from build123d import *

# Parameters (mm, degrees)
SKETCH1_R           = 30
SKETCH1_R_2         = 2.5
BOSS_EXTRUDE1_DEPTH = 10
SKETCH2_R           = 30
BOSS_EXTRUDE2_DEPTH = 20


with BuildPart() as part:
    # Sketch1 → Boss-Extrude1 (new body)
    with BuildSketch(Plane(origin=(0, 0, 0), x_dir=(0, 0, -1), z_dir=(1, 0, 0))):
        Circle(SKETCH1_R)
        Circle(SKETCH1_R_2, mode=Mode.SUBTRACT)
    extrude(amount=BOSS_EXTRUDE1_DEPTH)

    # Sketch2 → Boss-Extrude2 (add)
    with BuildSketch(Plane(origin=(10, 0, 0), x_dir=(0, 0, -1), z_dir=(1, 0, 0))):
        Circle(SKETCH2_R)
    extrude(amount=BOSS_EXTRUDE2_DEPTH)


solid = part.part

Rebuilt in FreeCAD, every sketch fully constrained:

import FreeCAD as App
import Part
import Sketcher

V = App.Vector
Q = App.Units.Quantity

doc = App.newDocument("Part")
body = doc.addObject("PartDesign::Body", "Body")

sketch1 = body.newObject("Sketcher::SketchObject", "Sketch")
sketch1.AttachmentSupport = (doc.getObject("YZ_Plane"), [""])
sketch1.MapMode = "FlatFace"
sketch1.addGeometry([
    Part.Circle(V(0, 0, 0), V(0, 0, 1), 30),
    Part.Circle(V(0, 0, 0), V(0, 0, 1), 2.5),
], False)
sketch1.addConstraint([
    Sketcher.Constraint("Coincident", 0, 3, -1, 1),
    Sketcher.Constraint("Coincident", 1, 3, -1, 1),
    Sketcher.Constraint("Diameter", 0, Q("60 mm")),
    Sketcher.Constraint("Diameter", 1, Q("5 mm")),
])
pad1 = body.newObject("PartDesign::Pad", "Pad")
pad1.Profile = sketch1
pad1.Length = 10

sketch2 = body.newObject("Sketcher::SketchObject", "Sketch001")
sketch2.AttachmentSupport = (doc.getObject("YZ_Plane"), [""])
sketch2.MapMode = "FlatFace"
sketch2.AttachmentOffset = App.Placement(V(0, 0, 10), App.Rotation())
sketch2.addGeometry(Part.Circle(V(0, 0, 0), V(0, 0, 1), 30), False)
sketch2.addConstraint([
    Sketcher.Constraint("Coincident", 0, 3, -1, 1),
    Sketcher.Constraint("Diameter", 0, Q("60 mm")),
])
pad2 = body.newObject("PartDesign::Pad", "Pad001")
pad2.Profile = sketch2
pad2.Length = 20

doc.recompute()
